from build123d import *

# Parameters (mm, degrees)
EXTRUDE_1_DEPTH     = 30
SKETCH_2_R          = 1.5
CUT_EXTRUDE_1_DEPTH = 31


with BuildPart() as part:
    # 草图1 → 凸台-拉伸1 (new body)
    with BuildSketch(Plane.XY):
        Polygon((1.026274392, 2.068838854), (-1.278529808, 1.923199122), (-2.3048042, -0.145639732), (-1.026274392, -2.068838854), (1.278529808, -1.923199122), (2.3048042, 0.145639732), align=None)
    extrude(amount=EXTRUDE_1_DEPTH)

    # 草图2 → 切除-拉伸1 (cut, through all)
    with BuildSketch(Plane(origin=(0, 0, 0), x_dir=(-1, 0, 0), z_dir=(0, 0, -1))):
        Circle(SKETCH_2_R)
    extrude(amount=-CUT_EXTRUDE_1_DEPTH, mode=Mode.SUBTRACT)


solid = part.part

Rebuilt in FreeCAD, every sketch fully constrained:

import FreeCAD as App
import Part
import Sketcher
from FreeCAD import Vector


def add_polygon(sketch, points):
    """Adds a closed chain of lines whose ends are joined by coincident constraints."""
    first, n = sketch.GeometryCount, len(points)
    for a, b in zip(points, points[1:] + points[:1]):
        sketch.addGeometry(Part.LineSegment(App.Vector(*a, 0), App.Vector(*b, 0)), False)
    for i in range(n):
        sketch.addConstraint(Sketcher.Constraint("Coincident", first + i, 2, first + (i + 1) % n, 1))

doc = App.newDocument("Part")
body = doc.addObject("PartDesign::Body", "Body")

sketch1 = body.newObject("Sketcher::SketchObject", "Sketch")
sketch1.AttachmentSupport = (doc.getObject("XY_Plane"), [""])
sketch1.MapMode = "FlatFace"
add_polygon(sketch1, [(1, 2.1), (-1.3, 1.9), (-2.3, -0.1), (-1, -2.1), (1.3, -1.9), (2.3, 0.1)])
sketch1.addConstraint(Sketcher.Constraint("Symmetric", 0, 2, 3, 2, -1, 1))
sketch1.addConstraint(Sketcher.Constraint("Symmetric", 1, 2, 4, 2, -1, 1))
sketch1.addConstraint(Sketcher.Constraint("Symmetric", 2, 2, 5, 2, -1, 1))
sketch1.addConstraint(Sketcher.Constraint("Equal", 0, 1))
sketch1.addConstraint(Sketcher.Constraint("Equal", 1, 2))
sketch1.addConstraint(Sketcher.Constraint("Distance", 0, 2.309401))
sketch1.addConstraint(Sketcher.Constraint("DistanceY", -1, 1, 0, 2, 1.923199))
sketch1.addConstraint(Sketcher.Constraint("DistanceY", 2, 2, 1, 2, 1.923199))
sketch1.addConstraint(Sketcher.Constraint("DistanceX", 0, 2, -1, 1, 1.27853))
pad1 = body.newObject("PartDesign::Pad", "Pad")
pad1.Profile = sketch1
pad1.Length = 30

sketch2 = body.newObject("Sketcher::SketchObject", "Sketch001")
sketch2.AttachmentSupport = (doc.getObject("XY_Plane"), [""])
sketch2.MapMode = "FlatFace"
sketch2.addGeometry(Part.Circle(Vector(0, 0, 0), Vector(0, 0, 1), 1.5), False)
sketch2.addConstraint(Sketcher.Constraint("Coincident", 0, 3, -1, 1))
sketch2.addConstraint(Sketcher.Constraint("Diameter", 0, 3.0))
pocket1 = body.newObject("PartDesign::Pocket", "Pocket")
pocket1.Profile = sketch2
pocket1.Type = "ThroughAll"
pocket1.Reversed = True

doc.recompute()
